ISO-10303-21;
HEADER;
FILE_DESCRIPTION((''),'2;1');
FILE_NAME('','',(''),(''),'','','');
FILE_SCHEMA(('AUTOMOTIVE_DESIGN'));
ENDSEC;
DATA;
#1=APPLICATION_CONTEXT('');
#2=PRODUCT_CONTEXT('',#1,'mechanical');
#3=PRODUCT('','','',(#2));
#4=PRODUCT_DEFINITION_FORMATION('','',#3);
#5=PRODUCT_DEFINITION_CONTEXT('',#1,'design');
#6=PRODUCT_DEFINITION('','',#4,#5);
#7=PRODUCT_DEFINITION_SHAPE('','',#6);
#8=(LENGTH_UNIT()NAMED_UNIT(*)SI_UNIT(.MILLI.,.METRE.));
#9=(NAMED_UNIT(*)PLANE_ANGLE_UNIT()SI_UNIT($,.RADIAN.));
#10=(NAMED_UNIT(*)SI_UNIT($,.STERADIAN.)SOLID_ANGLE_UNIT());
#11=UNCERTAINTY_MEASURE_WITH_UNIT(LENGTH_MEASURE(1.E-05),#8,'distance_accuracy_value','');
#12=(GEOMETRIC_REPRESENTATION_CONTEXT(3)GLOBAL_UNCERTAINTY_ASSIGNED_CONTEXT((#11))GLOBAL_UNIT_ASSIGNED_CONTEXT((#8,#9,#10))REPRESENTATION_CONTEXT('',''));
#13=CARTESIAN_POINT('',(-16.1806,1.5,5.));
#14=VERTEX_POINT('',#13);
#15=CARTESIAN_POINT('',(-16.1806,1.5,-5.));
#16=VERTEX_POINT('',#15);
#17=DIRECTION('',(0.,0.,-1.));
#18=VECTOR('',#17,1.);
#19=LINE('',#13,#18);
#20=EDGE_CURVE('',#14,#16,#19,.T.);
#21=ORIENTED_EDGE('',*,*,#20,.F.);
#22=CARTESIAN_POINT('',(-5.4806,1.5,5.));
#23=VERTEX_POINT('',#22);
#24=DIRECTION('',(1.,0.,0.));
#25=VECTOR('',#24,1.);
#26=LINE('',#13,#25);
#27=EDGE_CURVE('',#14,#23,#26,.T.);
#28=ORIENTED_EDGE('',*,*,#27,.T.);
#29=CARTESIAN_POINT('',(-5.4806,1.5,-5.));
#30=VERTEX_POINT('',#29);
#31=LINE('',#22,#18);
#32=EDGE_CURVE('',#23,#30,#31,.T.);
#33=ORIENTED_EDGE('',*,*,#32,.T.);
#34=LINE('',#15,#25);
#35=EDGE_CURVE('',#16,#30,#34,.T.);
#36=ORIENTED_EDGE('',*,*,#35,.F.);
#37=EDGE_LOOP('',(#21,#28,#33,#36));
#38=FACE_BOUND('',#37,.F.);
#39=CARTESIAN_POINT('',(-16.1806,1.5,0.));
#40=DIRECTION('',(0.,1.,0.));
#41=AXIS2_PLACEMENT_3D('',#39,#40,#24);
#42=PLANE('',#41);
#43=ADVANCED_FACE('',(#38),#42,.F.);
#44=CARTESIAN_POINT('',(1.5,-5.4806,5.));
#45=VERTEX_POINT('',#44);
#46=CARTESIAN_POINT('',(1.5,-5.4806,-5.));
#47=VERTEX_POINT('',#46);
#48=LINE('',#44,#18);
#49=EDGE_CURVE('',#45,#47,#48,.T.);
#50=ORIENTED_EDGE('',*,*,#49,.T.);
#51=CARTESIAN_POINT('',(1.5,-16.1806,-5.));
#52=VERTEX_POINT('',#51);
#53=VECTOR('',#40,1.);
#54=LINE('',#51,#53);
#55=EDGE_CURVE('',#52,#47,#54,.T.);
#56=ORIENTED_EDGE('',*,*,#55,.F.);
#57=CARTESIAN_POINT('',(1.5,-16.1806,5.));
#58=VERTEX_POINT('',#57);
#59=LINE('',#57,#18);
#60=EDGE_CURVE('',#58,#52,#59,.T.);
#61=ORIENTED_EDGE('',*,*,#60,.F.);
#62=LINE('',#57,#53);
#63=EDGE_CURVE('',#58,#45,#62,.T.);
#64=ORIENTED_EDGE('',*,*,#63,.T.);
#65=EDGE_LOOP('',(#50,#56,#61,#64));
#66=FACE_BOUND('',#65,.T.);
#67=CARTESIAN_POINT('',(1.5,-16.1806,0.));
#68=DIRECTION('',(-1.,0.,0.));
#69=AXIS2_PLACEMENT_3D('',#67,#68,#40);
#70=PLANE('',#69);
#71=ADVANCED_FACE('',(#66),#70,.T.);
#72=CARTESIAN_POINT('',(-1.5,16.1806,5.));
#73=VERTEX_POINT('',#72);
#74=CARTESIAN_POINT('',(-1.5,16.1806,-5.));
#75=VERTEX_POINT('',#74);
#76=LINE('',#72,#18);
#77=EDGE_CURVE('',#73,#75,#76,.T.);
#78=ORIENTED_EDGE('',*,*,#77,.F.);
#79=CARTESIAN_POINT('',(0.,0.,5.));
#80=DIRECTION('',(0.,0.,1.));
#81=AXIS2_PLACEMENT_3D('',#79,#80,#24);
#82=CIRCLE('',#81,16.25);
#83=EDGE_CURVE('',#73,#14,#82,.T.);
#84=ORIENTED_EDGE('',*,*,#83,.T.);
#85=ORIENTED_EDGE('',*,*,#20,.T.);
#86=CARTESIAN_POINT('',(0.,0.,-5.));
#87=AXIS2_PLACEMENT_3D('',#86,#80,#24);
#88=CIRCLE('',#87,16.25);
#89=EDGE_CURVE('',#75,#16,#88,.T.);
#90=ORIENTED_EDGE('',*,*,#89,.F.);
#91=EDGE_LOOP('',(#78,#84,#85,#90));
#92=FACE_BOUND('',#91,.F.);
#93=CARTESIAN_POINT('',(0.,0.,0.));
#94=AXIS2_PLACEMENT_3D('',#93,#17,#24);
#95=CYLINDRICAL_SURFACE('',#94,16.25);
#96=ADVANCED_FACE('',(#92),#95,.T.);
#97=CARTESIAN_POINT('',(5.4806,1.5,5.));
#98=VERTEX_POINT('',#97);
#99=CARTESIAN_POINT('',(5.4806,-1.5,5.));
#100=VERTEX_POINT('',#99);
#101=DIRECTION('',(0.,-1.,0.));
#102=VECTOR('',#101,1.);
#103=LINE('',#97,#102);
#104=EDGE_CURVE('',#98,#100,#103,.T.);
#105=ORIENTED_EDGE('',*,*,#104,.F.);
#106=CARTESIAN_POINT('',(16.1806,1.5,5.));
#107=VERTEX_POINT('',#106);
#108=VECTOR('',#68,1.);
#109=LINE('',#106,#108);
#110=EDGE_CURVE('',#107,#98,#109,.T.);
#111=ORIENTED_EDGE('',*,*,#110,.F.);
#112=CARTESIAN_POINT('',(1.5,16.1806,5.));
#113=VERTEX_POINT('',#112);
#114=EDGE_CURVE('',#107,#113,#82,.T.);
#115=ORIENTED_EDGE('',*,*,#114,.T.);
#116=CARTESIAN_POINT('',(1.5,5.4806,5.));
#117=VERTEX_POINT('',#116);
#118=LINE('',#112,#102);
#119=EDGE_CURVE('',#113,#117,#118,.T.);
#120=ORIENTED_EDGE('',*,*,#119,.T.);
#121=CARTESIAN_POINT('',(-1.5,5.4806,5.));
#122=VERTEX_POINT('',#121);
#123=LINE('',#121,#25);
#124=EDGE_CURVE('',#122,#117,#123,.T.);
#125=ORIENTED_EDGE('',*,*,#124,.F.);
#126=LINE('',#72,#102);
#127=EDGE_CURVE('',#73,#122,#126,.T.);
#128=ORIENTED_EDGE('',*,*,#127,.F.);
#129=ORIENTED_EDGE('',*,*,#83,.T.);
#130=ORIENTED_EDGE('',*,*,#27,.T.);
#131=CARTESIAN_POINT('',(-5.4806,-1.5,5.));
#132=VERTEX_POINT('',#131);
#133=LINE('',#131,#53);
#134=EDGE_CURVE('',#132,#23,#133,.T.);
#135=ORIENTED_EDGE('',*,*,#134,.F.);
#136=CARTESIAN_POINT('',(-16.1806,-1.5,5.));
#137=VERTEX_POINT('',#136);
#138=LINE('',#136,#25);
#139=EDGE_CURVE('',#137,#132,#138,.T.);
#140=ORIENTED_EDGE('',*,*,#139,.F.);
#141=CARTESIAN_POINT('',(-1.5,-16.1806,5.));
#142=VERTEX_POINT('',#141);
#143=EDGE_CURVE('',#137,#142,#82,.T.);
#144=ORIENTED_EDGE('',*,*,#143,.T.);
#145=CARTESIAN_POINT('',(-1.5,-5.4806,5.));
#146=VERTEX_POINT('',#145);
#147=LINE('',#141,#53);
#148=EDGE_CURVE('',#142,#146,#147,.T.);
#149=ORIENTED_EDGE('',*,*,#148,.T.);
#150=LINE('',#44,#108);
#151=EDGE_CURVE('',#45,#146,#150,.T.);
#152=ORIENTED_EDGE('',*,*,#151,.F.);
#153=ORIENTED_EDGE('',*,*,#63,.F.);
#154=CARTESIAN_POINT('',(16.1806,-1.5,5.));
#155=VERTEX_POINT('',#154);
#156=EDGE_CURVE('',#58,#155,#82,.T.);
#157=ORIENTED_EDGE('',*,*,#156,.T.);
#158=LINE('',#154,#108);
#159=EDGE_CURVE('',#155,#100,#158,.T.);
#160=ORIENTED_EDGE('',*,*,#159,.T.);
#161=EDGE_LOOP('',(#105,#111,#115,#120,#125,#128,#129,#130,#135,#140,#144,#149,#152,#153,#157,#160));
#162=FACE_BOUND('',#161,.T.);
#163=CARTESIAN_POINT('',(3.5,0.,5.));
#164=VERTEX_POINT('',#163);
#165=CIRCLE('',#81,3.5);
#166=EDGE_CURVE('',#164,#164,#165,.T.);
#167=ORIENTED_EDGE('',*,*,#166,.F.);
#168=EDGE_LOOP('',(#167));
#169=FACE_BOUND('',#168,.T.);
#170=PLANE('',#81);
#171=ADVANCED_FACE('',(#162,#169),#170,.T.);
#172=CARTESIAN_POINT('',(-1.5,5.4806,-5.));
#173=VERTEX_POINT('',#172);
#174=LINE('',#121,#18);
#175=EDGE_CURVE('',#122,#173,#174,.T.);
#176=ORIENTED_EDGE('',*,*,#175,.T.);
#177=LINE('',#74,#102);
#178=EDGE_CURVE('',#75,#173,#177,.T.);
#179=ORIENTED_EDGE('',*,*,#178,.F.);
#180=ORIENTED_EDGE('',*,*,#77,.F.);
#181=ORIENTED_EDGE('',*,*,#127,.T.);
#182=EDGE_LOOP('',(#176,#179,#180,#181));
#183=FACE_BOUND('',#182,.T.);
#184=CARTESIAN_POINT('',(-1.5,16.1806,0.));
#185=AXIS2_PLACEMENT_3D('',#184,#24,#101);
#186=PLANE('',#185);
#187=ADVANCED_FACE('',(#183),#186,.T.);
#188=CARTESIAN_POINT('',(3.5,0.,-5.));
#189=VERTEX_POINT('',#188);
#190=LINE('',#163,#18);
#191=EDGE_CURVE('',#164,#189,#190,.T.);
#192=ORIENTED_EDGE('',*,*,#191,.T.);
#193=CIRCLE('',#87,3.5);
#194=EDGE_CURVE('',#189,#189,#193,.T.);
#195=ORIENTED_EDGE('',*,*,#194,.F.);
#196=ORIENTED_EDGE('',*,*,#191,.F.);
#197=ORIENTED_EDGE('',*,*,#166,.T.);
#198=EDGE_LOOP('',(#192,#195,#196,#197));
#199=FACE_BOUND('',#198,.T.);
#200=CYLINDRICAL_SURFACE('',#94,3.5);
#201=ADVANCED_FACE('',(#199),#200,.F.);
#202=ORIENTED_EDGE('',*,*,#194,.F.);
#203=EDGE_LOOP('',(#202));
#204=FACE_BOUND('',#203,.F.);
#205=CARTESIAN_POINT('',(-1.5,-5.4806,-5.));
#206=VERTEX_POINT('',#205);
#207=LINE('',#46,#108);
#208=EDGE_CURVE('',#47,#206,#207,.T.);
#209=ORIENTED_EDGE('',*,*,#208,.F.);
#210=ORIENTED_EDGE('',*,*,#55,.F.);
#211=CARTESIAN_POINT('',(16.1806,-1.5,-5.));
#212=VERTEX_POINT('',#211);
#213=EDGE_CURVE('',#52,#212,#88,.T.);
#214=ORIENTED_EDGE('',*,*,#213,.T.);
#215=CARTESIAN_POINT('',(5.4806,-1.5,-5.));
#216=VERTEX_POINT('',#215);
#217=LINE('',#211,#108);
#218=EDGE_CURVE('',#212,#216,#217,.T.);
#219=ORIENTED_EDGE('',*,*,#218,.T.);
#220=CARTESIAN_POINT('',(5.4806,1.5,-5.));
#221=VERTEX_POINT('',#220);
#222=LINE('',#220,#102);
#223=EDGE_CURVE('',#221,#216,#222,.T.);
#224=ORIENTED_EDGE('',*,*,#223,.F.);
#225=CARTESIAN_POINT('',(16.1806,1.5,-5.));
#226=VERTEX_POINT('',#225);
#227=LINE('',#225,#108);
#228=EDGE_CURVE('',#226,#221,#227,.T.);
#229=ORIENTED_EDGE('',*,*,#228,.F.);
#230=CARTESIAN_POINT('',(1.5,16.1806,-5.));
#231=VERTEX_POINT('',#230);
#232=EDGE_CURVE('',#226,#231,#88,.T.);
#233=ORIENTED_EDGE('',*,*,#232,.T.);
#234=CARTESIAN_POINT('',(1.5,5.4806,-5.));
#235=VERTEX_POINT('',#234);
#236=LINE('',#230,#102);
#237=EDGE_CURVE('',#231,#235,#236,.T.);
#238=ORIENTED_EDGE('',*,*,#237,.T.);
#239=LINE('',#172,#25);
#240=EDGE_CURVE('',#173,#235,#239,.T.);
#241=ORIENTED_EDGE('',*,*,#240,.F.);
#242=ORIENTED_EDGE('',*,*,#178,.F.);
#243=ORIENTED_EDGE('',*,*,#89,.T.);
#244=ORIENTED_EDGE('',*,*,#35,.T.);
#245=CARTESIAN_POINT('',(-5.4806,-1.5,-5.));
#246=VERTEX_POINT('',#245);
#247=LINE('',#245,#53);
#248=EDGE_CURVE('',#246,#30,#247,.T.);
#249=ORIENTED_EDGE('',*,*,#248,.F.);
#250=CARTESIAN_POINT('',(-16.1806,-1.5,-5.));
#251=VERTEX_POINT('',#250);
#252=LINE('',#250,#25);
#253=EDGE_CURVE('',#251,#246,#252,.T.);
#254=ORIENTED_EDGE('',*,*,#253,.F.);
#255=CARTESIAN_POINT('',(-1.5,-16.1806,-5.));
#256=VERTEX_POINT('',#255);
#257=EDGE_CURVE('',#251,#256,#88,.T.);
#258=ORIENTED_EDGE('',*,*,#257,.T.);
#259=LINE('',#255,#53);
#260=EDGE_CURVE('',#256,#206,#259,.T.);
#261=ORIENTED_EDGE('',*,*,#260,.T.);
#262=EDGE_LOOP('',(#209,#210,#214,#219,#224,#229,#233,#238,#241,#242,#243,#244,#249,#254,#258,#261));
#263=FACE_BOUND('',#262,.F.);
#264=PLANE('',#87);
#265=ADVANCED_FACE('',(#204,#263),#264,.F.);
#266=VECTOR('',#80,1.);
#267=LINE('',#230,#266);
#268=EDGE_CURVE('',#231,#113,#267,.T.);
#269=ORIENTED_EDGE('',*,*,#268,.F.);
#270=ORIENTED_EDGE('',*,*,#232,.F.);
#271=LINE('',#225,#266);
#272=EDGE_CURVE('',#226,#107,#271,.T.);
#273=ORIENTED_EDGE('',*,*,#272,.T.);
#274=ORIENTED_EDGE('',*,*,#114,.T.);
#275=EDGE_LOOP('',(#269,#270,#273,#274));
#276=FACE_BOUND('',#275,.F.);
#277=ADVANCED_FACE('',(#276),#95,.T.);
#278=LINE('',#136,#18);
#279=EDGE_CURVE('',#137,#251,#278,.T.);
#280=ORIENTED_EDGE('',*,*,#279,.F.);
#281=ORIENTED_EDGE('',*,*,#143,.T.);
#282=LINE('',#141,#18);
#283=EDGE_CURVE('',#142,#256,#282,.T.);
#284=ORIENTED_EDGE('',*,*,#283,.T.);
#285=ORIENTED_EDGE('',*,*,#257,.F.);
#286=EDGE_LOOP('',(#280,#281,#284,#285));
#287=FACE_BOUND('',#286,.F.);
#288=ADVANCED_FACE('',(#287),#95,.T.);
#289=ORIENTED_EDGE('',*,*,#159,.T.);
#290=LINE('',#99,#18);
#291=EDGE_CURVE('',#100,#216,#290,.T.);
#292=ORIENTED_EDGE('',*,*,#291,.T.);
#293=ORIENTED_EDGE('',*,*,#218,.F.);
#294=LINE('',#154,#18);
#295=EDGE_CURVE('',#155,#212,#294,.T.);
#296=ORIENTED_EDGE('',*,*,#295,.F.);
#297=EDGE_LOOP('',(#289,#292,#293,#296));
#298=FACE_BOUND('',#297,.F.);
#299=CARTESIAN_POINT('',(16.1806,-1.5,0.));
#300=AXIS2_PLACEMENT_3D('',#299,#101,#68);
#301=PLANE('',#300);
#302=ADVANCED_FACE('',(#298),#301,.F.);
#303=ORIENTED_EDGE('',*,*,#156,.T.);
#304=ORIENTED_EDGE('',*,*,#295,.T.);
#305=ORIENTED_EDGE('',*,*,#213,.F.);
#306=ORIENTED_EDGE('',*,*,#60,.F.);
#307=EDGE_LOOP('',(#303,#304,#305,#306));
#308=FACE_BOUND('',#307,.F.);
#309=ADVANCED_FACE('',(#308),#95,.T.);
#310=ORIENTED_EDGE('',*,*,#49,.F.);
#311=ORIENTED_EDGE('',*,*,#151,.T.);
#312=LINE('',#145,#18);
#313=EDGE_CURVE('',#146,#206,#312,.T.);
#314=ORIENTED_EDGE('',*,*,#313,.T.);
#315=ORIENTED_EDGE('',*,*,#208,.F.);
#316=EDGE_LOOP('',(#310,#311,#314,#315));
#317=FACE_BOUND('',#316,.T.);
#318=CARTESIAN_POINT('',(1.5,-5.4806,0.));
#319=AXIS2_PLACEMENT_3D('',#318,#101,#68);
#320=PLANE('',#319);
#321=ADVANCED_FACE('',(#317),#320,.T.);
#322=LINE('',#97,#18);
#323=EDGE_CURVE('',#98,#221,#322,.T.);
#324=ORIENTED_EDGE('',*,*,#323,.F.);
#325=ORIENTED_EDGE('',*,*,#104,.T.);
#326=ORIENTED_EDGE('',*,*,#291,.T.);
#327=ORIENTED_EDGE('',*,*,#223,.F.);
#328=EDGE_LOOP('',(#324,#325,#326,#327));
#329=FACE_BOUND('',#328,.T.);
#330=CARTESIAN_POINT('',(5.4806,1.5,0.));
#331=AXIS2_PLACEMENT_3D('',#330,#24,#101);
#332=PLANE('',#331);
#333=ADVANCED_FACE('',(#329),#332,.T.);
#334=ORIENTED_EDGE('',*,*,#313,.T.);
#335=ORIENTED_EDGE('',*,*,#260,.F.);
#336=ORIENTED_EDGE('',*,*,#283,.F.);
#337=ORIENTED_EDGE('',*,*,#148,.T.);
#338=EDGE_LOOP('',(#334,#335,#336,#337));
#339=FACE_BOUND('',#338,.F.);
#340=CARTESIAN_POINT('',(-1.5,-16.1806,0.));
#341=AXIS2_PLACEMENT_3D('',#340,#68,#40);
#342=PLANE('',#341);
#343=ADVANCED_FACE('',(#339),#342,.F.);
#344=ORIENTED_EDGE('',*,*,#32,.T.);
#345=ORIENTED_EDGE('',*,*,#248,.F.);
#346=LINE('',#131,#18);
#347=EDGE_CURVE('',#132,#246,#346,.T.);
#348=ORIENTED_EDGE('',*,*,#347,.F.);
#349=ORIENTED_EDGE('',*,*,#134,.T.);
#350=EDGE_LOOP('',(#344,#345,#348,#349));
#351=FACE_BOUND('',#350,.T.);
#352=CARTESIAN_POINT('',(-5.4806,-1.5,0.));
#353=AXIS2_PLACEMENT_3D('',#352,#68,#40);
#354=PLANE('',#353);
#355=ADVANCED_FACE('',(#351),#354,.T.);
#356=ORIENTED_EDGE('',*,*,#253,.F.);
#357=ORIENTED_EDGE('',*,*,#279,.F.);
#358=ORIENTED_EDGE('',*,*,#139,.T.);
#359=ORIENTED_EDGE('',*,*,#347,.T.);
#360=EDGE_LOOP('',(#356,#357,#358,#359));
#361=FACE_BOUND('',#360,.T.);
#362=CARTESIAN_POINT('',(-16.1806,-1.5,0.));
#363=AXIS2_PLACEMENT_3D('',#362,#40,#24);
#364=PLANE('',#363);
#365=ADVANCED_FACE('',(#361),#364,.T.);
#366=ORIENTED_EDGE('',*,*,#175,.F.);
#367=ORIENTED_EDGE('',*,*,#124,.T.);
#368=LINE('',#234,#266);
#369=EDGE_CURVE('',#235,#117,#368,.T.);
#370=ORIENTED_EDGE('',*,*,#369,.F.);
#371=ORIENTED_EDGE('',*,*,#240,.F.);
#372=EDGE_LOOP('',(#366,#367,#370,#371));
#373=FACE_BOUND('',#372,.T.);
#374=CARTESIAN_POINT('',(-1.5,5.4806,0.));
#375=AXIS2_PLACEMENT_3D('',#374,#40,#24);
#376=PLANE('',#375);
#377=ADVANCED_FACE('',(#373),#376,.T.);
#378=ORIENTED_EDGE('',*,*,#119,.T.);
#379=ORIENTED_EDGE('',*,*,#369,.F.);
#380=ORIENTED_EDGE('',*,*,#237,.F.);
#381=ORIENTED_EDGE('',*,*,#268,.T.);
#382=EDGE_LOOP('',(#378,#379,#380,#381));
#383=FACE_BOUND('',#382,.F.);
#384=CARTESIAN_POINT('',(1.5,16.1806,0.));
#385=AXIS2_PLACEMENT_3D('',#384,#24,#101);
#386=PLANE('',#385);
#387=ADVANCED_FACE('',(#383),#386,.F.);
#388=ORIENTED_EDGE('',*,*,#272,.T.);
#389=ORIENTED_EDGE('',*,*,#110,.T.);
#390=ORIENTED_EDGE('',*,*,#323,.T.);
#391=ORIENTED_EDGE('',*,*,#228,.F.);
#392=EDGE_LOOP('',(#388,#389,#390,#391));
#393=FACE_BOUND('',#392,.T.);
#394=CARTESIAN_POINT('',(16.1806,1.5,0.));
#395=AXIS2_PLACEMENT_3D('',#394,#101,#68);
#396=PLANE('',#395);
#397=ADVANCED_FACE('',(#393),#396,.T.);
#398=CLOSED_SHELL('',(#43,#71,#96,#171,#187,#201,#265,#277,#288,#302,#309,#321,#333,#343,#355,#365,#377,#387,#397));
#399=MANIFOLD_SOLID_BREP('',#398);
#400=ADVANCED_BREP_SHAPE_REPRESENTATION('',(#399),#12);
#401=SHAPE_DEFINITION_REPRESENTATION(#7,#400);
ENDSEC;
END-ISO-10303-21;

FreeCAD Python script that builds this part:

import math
import FreeCAD as App
import Part
import Sketcher

V = App.Vector

doc = App.newDocument("Part")
body = doc.addObject("PartDesign::Body", "Body")

sketch1 = doc.addObject("Sketcher::SketchObject", "Sketch")
body.addObject(sketch1)
sketch1.AttachmentSupport = (doc.XY_Plane, [""])
sketch1.MapMode = "FlatFace"
sketch1.addGeometry([
    Part.LineSegment(V(5.4806, 1.5, 0), V(16.1806, 1.5, 0)),
    Part.ArcOfCircle(Part.Circle(V(0, 0, 0), V(0, 0, 1), 16.25), math.radians(5.296388), math.radians(84.703612)),
    Part.LineSegment(V(1.5, 16.1806, 0), V(1.5, 5.4806, 0)),
    Part.LineSegment(V(1.5, 5.4806, 0), V(-1.5, 5.4806, 0)),
    Part.LineSegment(V(-1.5, 5.4806, 0), V(-1.5, 16.1806, 0)),
    Part.ArcOfCircle(Part.Circle(V(0, 0, 0), V(0, 0, 1), 16.25), math.radians(95.296388), math.radians(174.703612)),
    Part.LineSegment(V(-16.1806, 1.5, 0), V(-5.4806, 1.5, 0)),
    Part.LineSegment(V(-5.4806, 1.5, 0), V(-5.4806, -1.5, 0)),
    Part.LineSegment(V(-5.4806, -1.5, 0), V(-16.1806, -1.5, 0)),
    Part.ArcOfCircle(Part.Circle(V(0, 0, 0), V(0, 0, 1), 16.25), math.radians(-174.703612), math.radians(-95.296388)),
    Part.LineSegment(V(-1.5, -16.1806, 0), V(-1.5, -5.4806, 0)),
    Part.LineSegment(V(-1.5, -5.4806, 0), V(1.5, -5.4806, 0)),
    Part.LineSegment(V(1.5, -5.4806, 0), V(1.5, -16.1806, 0)),
    Part.ArcOfCircle(Part.Circle(V(0, 0, 0), V(0, 0, 1), 16.25), math.radians(-84.703612), math.radians(-5.296388)),
    Part.LineSegment(V(16.1806, -1.5, 0), V(5.4806, -1.5, 0)),
    Part.LineSegment(V(5.4806, -1.5, 0), V(5.4806, 1.5, 0)),
    Part.Circle(V(0, 0, 0), V(0, 0, 1), 3.5),
], False)
sketch1.addConstraint([
    Sketcher.Constraint("Coincident", 0, 2, 1, 1),
    Sketcher.Constraint("Coincident", 1, 2, 2, 1),
    Sketcher.Constraint("Coincident", 2, 2, 3, 1),
    Sketcher.Constraint("Coincident", 3, 2, 4, 1),
    Sketcher.Constraint("Coincident", 4, 2, 5, 1),
    Sketcher.Constraint("Coincident", 5, 2, 6, 1),
    Sketcher.Constraint("Coincident", 6, 2, 7, 1),
    Sketcher.Constraint("Coincident", 7, 2, 8, 1),
    Sketcher.Constraint("Coincident", 8, 2, 9, 1),
    Sketcher.Constraint("Coincident", 9, 2, 10, 1),
    Sketcher.Constraint("Coincident", 10, 2, 11, 1),
    Sketcher.Constraint("Coincident", 11, 2, 12, 1),
    Sketcher.Constraint("Coincident", 12, 2, 13, 1),
    Sketcher.Constraint("Coincident", 13, 2, 14, 1),
    Sketcher.Constraint("Coincident", 14, 2, 15, 1),
    Sketcher.Constraint("Coincident", 15, 2, 0, 1),
    Sketcher.Constraint("Horizontal", 0),
    Sketcher.Constraint("Vertical", 2),
    Sketcher.Constraint("Horizontal", 3),
    Sketcher.Constraint("Vertical", 4),
    Sketcher.Constraint("Horizontal", 6),
    Sketcher.Constraint("Vertical", 7),
    Sketcher.Constraint("Horizontal", 8),
    Sketcher.Constraint("Vertical", 10),
    Sketcher.Constraint("Horizontal", 11),
    Sketcher.Constraint("Vertical", 12),
    Sketcher.Constraint("Horizontal", 14),
    Sketcher.Constraint("Vertical", 15),
    Sketcher.Constraint("Coincident", 1, 3, -1, 1),
    Sketcher.Constraint("Coincident", 5, 3, -1, 1),
    Sketcher.Constraint("Coincident", 9, 3, -1, 1),
    Sketcher.Constraint("Coincident", 13, 3, -1, 1),
    Sketcher.Constraint("Coincident", 16, 3, -1, 1),
    Sketcher.Constraint("Equal", 1, 5),
    Sketcher.Constraint("Equal", 5, 9),
    Sketcher.Constraint("Equal", 9, 13),
    Sketcher.Constraint("Symmetric", 2, 2, 10, 2, -1, 1),
    Sketcher.Constraint("Symmetric", 6, 2, 14, 2, -1, 1),
    Sketcher.Constraint("Horizontal", 1, 2, 4, 2),
    Sketcher.Constraint("Horizontal", 0, 2, 5, 2),
    Sketcher.Constraint("Horizontal", 9, 2, 12, 2),
    Sketcher.Constraint("Horizontal", 8, 2, 13, 2),
    Sketcher.Constraint("Equal", 14, 2),
    Sketcher.Constraint("Equal", 11, 7),
    Sketcher.Constraint("Diameter", 16, 7.0),
    Sketcher.Constraint("DistanceX", 3, 2, 3, 1, 3.0),
    Sketcher.Constraint("Radius", 1, 16.25),
    Sketcher.Constraint("DistanceX", 0, 1, 0, 2, 10.7),
])
pad1 = doc.addObject("PartDesign::Pad", "Pad")
body.addObject(pad1)
pad1.Profile = sketch1
pad1.Length = 10
pad1.Midplane = True

doc.recompute()
